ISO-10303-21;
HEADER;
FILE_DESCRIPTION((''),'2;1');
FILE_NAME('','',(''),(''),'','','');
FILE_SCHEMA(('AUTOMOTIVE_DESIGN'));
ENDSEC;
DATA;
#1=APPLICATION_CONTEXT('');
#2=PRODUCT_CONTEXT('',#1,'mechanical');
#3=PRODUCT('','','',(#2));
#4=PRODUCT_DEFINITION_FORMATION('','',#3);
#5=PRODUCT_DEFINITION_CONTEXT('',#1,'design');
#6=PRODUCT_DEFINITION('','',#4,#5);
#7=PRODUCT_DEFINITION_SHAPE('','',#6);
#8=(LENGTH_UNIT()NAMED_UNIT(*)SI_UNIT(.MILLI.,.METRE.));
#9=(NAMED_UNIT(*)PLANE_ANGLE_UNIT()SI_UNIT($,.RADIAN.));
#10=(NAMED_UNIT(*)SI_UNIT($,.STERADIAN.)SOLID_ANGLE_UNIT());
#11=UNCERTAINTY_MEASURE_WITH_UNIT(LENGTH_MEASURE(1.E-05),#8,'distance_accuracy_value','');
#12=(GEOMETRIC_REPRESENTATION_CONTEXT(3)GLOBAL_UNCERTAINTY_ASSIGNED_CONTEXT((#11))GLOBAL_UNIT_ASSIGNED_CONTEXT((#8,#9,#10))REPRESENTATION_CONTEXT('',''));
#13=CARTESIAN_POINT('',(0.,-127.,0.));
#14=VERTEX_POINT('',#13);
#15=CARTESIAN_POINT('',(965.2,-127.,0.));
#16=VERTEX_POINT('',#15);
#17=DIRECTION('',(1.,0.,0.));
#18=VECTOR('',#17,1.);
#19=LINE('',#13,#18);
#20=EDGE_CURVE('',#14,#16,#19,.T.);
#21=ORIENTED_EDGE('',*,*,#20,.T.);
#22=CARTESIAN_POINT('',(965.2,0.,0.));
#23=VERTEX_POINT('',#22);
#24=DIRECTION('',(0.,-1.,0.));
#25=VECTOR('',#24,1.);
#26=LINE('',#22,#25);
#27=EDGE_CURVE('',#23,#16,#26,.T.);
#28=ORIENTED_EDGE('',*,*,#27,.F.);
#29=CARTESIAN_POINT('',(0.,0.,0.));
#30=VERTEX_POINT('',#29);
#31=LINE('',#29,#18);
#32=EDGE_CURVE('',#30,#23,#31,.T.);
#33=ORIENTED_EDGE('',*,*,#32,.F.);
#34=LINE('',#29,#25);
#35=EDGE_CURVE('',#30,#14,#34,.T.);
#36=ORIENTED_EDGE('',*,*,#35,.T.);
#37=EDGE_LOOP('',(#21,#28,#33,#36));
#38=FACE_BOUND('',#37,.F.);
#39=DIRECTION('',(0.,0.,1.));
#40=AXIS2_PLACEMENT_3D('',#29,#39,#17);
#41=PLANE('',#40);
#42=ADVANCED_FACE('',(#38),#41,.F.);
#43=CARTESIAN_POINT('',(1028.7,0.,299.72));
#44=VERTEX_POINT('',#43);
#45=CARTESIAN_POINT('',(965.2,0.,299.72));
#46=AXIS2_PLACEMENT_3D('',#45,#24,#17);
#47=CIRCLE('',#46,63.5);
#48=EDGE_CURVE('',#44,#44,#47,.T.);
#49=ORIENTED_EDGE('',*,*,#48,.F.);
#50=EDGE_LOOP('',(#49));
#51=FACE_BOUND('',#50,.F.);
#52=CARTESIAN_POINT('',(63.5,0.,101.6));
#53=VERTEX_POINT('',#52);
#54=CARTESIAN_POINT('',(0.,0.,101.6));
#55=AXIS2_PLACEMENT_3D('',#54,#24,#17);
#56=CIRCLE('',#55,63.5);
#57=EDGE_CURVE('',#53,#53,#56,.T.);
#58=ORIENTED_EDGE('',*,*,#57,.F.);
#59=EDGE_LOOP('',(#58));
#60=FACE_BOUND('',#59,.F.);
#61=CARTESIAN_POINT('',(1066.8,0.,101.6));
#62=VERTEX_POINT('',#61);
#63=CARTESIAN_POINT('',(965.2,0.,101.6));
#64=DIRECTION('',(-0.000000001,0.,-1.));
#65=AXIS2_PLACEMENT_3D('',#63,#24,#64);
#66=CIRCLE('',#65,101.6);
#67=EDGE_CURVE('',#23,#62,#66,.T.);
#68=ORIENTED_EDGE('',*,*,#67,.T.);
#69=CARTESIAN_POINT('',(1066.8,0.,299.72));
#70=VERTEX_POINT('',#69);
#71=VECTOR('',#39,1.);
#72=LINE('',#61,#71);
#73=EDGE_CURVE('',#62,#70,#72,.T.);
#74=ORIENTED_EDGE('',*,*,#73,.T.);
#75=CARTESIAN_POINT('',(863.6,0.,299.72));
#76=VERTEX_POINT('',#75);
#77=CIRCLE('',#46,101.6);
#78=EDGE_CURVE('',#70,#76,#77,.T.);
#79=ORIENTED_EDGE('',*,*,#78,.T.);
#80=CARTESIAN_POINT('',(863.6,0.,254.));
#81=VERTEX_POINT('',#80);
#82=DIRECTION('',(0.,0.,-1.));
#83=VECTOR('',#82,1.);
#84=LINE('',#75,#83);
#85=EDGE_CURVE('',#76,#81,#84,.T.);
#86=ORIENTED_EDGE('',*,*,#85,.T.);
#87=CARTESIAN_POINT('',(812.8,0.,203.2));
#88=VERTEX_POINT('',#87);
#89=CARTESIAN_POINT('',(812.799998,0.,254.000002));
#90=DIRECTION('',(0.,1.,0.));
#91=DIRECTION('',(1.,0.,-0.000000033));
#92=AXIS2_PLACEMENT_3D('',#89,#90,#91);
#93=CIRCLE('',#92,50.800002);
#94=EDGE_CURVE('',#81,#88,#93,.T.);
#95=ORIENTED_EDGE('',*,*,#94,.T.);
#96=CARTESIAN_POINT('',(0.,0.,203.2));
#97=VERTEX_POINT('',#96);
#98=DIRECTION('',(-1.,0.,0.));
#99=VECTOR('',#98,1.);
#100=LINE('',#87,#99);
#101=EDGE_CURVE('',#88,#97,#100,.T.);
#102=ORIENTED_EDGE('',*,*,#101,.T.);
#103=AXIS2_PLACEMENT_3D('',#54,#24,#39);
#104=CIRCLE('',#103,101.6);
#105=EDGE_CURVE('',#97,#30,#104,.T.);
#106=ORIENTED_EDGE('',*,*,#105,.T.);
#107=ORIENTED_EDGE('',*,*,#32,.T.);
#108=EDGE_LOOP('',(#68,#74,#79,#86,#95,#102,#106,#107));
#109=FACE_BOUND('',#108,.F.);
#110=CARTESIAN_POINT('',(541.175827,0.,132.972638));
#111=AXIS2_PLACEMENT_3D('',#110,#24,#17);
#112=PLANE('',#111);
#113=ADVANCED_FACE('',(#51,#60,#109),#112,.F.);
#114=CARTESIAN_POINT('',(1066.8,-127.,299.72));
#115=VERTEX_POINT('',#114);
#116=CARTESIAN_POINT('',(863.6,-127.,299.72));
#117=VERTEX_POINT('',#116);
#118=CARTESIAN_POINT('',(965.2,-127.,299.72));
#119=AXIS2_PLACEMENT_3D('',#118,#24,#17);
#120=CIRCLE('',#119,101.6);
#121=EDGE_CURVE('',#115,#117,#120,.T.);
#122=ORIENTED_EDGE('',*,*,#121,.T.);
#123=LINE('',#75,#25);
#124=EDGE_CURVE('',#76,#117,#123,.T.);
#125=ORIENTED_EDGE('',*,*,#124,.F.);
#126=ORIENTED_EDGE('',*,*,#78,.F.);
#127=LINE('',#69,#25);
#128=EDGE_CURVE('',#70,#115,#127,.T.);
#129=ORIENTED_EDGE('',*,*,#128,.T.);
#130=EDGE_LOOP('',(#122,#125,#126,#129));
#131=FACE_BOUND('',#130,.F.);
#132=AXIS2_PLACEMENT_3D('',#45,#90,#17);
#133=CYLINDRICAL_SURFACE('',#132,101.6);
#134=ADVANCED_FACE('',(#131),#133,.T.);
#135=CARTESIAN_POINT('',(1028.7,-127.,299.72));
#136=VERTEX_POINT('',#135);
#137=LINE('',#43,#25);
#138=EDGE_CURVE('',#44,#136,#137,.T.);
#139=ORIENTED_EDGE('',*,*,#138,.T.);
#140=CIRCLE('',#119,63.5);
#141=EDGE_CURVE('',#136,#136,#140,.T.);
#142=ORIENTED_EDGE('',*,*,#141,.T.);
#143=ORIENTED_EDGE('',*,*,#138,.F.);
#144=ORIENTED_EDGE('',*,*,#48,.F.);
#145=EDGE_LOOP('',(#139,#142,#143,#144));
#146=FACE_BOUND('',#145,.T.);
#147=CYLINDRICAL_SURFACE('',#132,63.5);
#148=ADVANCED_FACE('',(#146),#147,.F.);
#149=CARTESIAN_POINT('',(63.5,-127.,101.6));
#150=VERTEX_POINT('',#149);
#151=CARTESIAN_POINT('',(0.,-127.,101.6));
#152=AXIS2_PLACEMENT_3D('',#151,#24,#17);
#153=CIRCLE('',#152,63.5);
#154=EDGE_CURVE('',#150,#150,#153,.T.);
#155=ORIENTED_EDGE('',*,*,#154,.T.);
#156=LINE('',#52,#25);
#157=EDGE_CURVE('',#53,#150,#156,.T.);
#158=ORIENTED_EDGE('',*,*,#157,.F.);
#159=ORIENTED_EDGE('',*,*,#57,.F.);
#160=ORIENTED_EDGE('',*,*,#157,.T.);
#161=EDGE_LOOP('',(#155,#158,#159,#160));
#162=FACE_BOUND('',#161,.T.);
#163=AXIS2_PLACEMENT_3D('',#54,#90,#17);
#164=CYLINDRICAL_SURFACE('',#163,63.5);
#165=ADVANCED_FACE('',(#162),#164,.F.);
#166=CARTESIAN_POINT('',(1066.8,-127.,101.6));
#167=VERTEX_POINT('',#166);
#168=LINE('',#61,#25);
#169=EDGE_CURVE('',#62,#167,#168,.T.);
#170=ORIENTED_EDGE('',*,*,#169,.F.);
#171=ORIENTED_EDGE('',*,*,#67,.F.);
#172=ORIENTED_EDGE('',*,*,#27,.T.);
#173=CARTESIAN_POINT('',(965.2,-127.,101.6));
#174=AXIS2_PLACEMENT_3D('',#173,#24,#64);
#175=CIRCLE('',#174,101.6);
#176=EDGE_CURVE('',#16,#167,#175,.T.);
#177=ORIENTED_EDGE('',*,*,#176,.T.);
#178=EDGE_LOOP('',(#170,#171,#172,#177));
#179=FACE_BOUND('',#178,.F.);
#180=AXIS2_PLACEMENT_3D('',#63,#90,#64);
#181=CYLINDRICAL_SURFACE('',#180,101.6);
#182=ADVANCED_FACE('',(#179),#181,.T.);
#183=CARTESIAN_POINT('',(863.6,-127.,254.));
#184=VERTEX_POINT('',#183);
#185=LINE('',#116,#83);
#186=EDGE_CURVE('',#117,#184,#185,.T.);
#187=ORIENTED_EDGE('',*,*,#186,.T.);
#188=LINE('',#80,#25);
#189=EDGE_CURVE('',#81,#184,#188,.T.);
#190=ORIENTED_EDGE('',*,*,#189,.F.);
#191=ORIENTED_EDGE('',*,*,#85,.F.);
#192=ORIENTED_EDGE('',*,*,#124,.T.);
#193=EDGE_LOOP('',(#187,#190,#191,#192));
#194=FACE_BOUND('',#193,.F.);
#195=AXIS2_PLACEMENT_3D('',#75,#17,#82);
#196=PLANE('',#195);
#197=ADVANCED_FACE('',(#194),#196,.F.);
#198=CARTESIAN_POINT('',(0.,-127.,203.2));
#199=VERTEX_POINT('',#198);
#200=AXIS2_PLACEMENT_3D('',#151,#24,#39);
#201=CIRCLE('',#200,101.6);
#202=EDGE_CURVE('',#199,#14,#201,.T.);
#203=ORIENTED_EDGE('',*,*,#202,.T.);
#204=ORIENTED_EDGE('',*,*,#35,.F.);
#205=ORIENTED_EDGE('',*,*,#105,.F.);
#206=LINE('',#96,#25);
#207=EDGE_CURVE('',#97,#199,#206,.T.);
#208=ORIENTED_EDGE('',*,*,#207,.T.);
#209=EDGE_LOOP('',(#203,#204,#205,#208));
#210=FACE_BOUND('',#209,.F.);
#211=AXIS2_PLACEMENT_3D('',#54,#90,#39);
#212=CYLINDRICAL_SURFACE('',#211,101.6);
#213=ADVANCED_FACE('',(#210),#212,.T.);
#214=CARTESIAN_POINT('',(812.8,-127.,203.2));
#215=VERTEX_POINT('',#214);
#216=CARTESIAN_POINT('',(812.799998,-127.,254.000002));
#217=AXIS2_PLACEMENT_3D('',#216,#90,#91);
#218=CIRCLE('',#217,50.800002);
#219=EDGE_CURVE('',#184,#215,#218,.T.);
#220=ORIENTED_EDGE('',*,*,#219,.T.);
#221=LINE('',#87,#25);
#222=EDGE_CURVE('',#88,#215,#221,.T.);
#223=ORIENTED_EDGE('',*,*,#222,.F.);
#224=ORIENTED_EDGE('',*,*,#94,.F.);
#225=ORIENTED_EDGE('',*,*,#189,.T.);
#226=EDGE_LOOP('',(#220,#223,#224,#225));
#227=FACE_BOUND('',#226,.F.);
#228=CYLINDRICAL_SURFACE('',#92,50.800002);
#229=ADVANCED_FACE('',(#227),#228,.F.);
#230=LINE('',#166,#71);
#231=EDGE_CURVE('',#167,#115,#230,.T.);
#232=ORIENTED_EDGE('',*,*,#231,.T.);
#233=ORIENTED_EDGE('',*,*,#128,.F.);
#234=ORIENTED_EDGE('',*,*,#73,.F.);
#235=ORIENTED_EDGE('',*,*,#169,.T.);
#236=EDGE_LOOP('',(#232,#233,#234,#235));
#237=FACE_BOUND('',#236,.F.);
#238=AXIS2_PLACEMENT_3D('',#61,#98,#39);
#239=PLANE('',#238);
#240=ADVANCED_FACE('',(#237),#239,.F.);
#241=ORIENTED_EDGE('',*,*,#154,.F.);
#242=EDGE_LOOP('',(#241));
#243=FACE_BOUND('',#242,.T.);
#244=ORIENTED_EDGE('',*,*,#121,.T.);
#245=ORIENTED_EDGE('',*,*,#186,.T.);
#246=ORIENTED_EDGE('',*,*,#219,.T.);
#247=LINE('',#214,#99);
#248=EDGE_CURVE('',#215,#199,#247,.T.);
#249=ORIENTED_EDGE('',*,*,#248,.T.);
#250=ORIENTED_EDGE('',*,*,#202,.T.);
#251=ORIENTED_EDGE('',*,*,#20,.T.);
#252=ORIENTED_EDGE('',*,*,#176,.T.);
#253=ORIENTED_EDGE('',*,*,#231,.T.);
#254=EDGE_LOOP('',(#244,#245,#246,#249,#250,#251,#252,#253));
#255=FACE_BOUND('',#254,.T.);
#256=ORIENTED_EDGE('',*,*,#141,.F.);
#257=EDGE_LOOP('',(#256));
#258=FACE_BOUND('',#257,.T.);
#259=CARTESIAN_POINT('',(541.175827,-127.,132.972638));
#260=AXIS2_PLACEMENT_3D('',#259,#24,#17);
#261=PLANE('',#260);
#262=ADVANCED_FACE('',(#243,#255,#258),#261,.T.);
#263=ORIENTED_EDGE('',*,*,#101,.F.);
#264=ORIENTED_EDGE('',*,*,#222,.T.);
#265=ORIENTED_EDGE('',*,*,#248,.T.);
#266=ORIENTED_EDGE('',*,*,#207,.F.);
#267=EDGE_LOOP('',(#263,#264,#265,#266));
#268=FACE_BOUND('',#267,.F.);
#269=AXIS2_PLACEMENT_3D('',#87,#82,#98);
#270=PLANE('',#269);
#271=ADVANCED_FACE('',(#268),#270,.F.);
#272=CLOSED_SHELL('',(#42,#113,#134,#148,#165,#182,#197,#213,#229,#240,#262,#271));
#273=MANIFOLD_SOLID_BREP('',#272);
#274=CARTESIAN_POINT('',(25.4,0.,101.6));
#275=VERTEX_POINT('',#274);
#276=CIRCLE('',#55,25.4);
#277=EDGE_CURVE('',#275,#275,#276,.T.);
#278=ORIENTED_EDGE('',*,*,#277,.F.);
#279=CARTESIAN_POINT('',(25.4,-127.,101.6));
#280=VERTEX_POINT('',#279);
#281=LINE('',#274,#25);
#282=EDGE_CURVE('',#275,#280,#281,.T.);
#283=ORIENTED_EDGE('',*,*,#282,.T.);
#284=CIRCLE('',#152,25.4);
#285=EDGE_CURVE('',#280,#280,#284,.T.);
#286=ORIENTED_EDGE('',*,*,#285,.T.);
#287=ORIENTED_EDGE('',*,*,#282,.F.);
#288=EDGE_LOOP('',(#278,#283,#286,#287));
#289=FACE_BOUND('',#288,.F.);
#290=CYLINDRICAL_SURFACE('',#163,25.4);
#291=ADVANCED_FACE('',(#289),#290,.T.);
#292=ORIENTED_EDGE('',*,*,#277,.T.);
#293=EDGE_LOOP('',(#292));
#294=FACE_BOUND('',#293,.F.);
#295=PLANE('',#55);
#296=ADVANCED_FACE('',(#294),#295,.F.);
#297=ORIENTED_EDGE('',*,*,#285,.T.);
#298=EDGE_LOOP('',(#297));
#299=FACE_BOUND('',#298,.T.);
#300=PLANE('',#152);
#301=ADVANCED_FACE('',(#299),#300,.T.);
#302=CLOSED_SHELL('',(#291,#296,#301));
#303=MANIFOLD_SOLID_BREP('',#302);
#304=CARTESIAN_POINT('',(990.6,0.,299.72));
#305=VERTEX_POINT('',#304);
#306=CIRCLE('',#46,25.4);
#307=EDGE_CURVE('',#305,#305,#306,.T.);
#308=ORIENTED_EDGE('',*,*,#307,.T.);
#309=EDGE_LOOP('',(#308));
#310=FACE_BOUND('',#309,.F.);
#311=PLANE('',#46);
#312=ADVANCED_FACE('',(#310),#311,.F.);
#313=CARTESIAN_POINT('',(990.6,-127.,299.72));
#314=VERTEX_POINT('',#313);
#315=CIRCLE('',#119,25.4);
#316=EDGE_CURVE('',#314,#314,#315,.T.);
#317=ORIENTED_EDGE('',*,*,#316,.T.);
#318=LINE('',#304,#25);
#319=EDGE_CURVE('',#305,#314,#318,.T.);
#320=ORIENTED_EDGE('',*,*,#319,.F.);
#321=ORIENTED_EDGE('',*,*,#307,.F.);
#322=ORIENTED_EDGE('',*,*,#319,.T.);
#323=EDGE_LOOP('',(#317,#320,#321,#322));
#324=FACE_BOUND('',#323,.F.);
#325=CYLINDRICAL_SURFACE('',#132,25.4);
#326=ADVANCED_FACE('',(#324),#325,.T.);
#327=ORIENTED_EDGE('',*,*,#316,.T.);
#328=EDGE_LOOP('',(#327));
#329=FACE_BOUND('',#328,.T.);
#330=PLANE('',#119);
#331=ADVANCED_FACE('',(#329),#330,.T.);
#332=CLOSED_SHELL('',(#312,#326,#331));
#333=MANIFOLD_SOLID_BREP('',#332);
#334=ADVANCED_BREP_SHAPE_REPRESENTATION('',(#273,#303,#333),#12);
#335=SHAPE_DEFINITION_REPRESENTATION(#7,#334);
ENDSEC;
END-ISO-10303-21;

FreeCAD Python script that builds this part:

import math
import FreeCAD as App
import Part
import Sketcher
from FreeCAD import Vector
Q = App.Units.Quantity

doc = App.newDocument("Part")
body = doc.addObject("PartDesign::Body", "Body")
body.AllowCompound = True

sketch1 = body.newObject("Sketcher::SketchObject", "Sketch")
sketch1.AttachmentSupport = (doc.getObject("XZ_Plane"), [""])
sketch1.MapMode = "FlatFace"
sketch1.addGeometry([
    Part.ArcOfCircle(Part.Circle(Vector(0, 102, 0), Vector(0, 0, 1), 102), math.radians(90), math.radians(270)),
    Part.LineSegment(Vector(0, 0, 0), Vector(965, 0, 0)),
    Part.ArcOfCircle(Part.Circle(Vector(965, 102, 0), Vector(0, 0, 1), 102), math.radians(-90), math.radians(0)),
    Part.LineSegment(Vector(1067, 102, 0), Vector(1067, 300, 0)),
    Part.ArcOfCircle(Part.Circle(Vector(965, 300, 0), Vector(0, 0, 1), 102), math.radians(0), math.radians(180)),
    Part.LineSegment(Vector(864, 300, 0), Vector(864, 254, 0)),
    Part.ArcOfCircle(Part.Circle(Vector(813, 254, 0), Vector(0, 0, 1), 51), math.radians(-90), math.radians(0)),
    Part.LineSegment(Vector(813, 203, 0), Vector(0, 203, 0)),
    Part.Circle(Vector(0, 102, 0), Vector(0, 0, 1), 64),
    Part.Circle(Vector(965, 300, 0), Vector(0, 0, 1), 64),
    Part.Circle(Vector(0, 102, 0), Vector(0, 0, 1), 25),
    Part.Circle(Vector(965, 300, 0), Vector(0, 0, 1), 25),
], False)
sketch1.addConstraint([
    Sketcher.Constraint("Tangent", 0, 2, 1, 1),
    Sketcher.Constraint("Tangent", 1, 2, 2, 1),
    Sketcher.Constraint("Tangent", 2, 2, 3, 1),
    Sketcher.Constraint("Tangent", 3, 2, 4, 1),
    Sketcher.Constraint("Tangent", 4, 2, 5, 1),
    Sketcher.Constraint("Tangent", 5, 2, 6, 2),
    Sketcher.Constraint("Tangent", 6, 1, 7, 1),
    Sketcher.Constraint("Tangent", 7, 2, 0, 1),
    Sketcher.Constraint("Horizontal", 1),
    Sketcher.Constraint("Vertical", 3),
    Sketcher.Constraint("Vertical", 5),
    Sketcher.Constraint("Horizontal", 7),
    Sketcher.Constraint("Coincident", 0, 2, -1, 1),
    Sketcher.Constraint("Coincident", 8, 3, 0, 3),
    Sketcher.Constraint("Coincident", 9, 3, 4, 3),
    Sketcher.Constraint("Coincident", 10, 3, 0, 3),
    Sketcher.Constraint("Coincident", 11, 3, 4, 3),
    Sketcher.Constraint("Equal", 0, 2),
    Sketcher.Constraint("Equal", 2, 4),
    Sketcher.Constraint("Equal", 8, 9),
    Sketcher.Constraint("Equal", 10, 11),
    Sketcher.Constraint("Diameter", 8, Q("5 in")),
    Sketcher.Constraint("Diameter", 10, Q("2 in")),
    Sketcher.Constraint("Radius", 0, Q("4 in")),
    Sketcher.Constraint("Radius", 6, Q("2.0000001 in")),
    Sketcher.Constraint("DistanceX", 1, 1, 1, 2, Q("38 in")),
    Sketcher.Constraint("DistanceY", 3, 1, 3, 2, Q("7.8 in")),
])
pad1 = body.newObject("PartDesign::Pad", "Pad")
pad1.Profile = sketch1
pad1.Length = Q("5 in")

doc.recompute()
